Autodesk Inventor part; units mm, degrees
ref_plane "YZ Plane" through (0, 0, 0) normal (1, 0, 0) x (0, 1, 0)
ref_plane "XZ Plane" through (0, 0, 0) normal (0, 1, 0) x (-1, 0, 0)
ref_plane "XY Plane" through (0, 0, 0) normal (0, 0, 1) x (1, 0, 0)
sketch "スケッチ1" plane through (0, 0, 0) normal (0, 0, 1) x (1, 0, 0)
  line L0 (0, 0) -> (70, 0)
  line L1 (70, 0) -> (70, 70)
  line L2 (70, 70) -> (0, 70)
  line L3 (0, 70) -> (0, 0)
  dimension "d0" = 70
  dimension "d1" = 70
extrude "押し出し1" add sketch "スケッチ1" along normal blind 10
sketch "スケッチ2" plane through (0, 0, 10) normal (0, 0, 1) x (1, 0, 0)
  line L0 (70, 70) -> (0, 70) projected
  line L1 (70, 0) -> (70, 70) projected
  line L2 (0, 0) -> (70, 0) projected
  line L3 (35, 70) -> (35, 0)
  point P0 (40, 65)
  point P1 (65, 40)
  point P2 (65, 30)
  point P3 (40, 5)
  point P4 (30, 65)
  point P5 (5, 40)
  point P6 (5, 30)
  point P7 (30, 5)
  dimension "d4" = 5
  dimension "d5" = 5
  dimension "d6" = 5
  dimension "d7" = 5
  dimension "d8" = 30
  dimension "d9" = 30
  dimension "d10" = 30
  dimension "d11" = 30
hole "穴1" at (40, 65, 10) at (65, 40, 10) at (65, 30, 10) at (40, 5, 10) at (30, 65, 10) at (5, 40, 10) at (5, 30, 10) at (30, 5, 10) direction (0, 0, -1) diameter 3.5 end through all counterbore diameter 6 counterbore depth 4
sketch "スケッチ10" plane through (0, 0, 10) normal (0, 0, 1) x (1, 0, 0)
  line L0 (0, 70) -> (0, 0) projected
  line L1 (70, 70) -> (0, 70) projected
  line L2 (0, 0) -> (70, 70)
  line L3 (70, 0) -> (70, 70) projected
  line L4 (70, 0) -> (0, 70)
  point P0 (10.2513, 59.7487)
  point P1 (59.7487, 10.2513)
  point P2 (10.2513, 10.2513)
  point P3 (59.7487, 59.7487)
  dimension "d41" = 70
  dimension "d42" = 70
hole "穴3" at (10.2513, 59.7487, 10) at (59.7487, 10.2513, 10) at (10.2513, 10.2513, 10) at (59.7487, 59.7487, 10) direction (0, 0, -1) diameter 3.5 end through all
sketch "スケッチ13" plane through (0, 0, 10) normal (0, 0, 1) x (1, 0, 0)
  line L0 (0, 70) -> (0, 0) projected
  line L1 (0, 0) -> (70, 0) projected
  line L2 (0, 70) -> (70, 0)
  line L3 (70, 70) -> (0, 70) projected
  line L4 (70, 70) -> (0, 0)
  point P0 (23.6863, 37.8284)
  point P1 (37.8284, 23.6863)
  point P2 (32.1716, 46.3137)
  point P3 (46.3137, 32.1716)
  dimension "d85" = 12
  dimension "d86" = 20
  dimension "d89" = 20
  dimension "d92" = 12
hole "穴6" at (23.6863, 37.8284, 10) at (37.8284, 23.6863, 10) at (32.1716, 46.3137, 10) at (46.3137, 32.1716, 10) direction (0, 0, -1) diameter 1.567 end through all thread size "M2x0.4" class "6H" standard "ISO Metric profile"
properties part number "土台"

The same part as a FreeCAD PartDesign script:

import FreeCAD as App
import Part
import Sketcher
Q = App.Units.Quantity

doc = App.newDocument("Part")
params = doc.addObject("Spreadsheet::Sheet", "Params")
for row, (alias, value) in enumerate([
    ("sketch1_width", "70 mm"),
    ("pad1_length", "10 mm"),
    ("sketch2_diameter", "3.5 mm"),
    ("hole_diameter", "3.5 mm"),
    ("hole_cbore_diameter", "6 mm"),
    ("hole_cbore_depth", "4 mm"),
    ("sketch3_diameter", "3.5 mm"),
    ("hole2_diameter", "3.5 mm"),
    ("hole3_diameter", "1.567 mm"),
], start=1):
    params.set(f"A{row}", alias)
    params.set(f"B{row}", "=" + value)
    params.setAlias(f"B{row}", alias)

body = doc.addObject("PartDesign::Body", "Body")

sketch1 = body.newObject("Sketcher::SketchObject", "Sketch")
sketch1.AttachmentSupport = (doc.getObject("XY_Plane"), [""])
sketch1.MapMode = "FlatFace"
sketch1.addGeometry([
    Part.LineSegment(App.Vector(0, 70, 0), App.Vector(0, 0, 0)),
    Part.LineSegment(App.Vector(0, 0, 0), App.Vector(70, 0, 0)),
    Part.LineSegment(App.Vector(70, 0, 0), App.Vector(70, 70, 0)),
    Part.LineSegment(App.Vector(70, 70, 0), App.Vector(0, 70, 0)),
], False)
sketch1.addConstraint([
    Sketcher.Constraint("Coincident", 0, 2, 1, 1),
    Sketcher.Constraint("Coincident", 1, 2, 2, 1),
    Sketcher.Constraint("Coincident", 2, 2, 3, 1),
    Sketcher.Constraint("Coincident", 3, 2, 0, 1),
    Sketcher.Constraint("Vertical", 0),
    Sketcher.Constraint("Horizontal", 1),
    Sketcher.Constraint("Vertical", 2),
    Sketcher.Constraint("Horizontal", 3),
    Sketcher.Constraint("Coincident", 0, 2, -1, 1),
    Sketcher.Constraint("Equal", 3, 0),
    Sketcher.Constraint("DistanceX", 1, 1, 1, 2, Q("70 mm")),
])
sketch1.setExpression("Constraints[10]", "Params.sketch1_width")
pad1 = body.newObject("PartDesign::Pad", "Pad")
pad1.Profile = sketch1
pad1.setExpression("Length", "Params.pad1_length")

sketch2 = body.newObject("Sketcher::SketchObject", "Sketch001")
sketch2.AttachmentSupport = (doc.getObject("XY_Plane"), [""])
sketch2.MapMode = "FlatFace"
sketch2.AttachmentOffset = App.Placement(App.Vector(0, 0, 10), App.Rotation())
sketch2.addGeometry([
    Part.Circle(App.Vector(40, 65, 0), App.Vector(0, 0, 1), 1.75),
    Part.Circle(App.Vector(65, 40, 0), App.Vector(0, 0, 1), 1.75),
    Part.Circle(App.Vector(65, 30, 0), App.Vector(0, 0, 1), 1.75),
    Part.Circle(App.Vector(40, 5, 0), App.Vector(0, 0, 1), 1.75),
    Part.Circle(App.Vector(30, 65, 0), App.Vector(0, 0, 1), 1.75),
    Part.Circle(App.Vector(5, 40, 0), App.Vector(0, 0, 1), 1.75),
    Part.Circle(App.Vector(5, 30, 0), App.Vector(0, 0, 1), 1.75),
    Part.Circle(App.Vector(30, 5, 0), App.Vector(0, 0, 1), 1.75),
], False)
sketch2.addConstraint([
    Sketcher.Constraint("Equal", 0, 1),
    Sketcher.Constraint("Equal", 1, 2),
    Sketcher.Constraint("Equal", 2, 3),
    Sketcher.Constraint("Equal", 3, 4),
    Sketcher.Constraint("Equal", 4, 5),
    Sketcher.Constraint("Equal", 5, 6),
    Sketcher.Constraint("Equal", 6, 7),
    Sketcher.Constraint("Horizontal", 0, 3, 4, 3),
    Sketcher.Constraint("Horizontal", 1, 3, 5, 3),
    Sketcher.Constraint("Horizontal", 2, 3, 6, 3),
    Sketcher.Constraint("Horizontal", 3, 3, 7, 3),
    Sketcher.Constraint("Vertical", 1, 3, 2, 3),
    Sketcher.Constraint("Vertical", 0, 3, 3, 3),
    Sketcher.Constraint("Vertical", 5, 3, 6, 3),
    Sketcher.Constraint("Vertical", 4, 3, 7, 3),
    Sketcher.Constraint("Diameter", 0, Q("3.5 mm")),
    Sketcher.Constraint("DistanceX", -1, 1, 0, 3, Q("40 mm")),
    Sketcher.Constraint("DistanceY", -1, 1, 0, 3, Q("65 mm")),
    Sketcher.Constraint("DistanceX", -1, 1, 1, 3, Q("65 mm")),
    Sketcher.Constraint("DistanceY", -1, 1, 1, 3, Q("40 mm")),
    Sketcher.Constraint("DistanceY", -1, 1, 2, 3, Q("30 mm")),
    Sketcher.Constraint("DistanceY", -1, 1, 3, 3, Q("5 mm")),
    Sketcher.Constraint("DistanceX", -1, 1, 4, 3, Q("30 mm")),
    Sketcher.Constraint("DistanceX", -1, 1, 5, 3, Q("5 mm")),
])
sketch2.setExpression("Constraints[15]", "Params.sketch2_diameter")
doc.recompute()
hole = body.newObject("PartDesign::Hole", "Hole")
hole.Profile = sketch2
hole.ThreadType = "None"
hole.setExpression("Diameter", "Params.hole_diameter")
hole.DepthType = "ThroughAll"
hole.HoleCutType = "Counterbore"
hole.setExpression("HoleCutDiameter", "Params.hole_cbore_diameter")
hole.setExpression("HoleCutDepth", "Params.hole_cbore_depth")

sketch3 = body.newObject("Sketcher::SketchObject", "Sketch002")
sketch3.AttachmentSupport = (doc.getObject("XY_Plane"), [""])
sketch3.MapMode = "FlatFace"
sketch3.AttachmentOffset = App.Placement(App.Vector(0, 0, 10), App.Rotation())
sketch3.addGeometry([
    Part.Circle(App.Vector(10.2513, 59.7487, 0), App.Vector(0, 0, 1), 1.75),
    Part.Circle(App.Vector(59.7487, 10.2513, 0), App.Vector(0, 0, 1), 1.75),
    Part.Circle(App.Vector(10.2513, 10.2513, 0), App.Vector(0, 0, 1), 1.75),
    Part.Circle(App.Vector(59.7487, 59.7487, 0), App.Vector(0, 0, 1), 1.75),
], False)
sketch3.addConstraint([
    Sketcher.Constraint("Equal", 0, 1),
    Sketcher.Constraint("Equal", 1, 2),
    Sketcher.Constraint("Equal", 2, 3),
    Sketcher.Constraint("Horizontal", 1, 3, 2, 3),
    Sketcher.Constraint("Horizontal", 0, 3, 3, 3),
    Sketcher.Constraint("Vertical", 0, 3, 2, 3),
    Sketcher.Constraint("Vertical", 1, 3, 3, 3),
    Sketcher.Constraint("Diameter", 0, Q("3.5 mm")),
    Sketcher.Constraint("DistanceX", -1, 1, 0, 3, Q("10.2513 mm")),
    Sketcher.Constraint("DistanceY", -1, 1, 0, 3, Q("59.7487 mm")),
    Sketcher.Constraint("DistanceX", -1, 1, 1, 3, Q("59.7487 mm")),
    Sketcher.Constraint("DistanceY", -1, 1, 1, 3, Q("10.2513 mm")),
])
sketch3.setExpression("Constraints[7]", "Params.sketch3_diameter")
doc.recompute()
hole2 = body.newObject("PartDesign::Hole", "Hole001")
hole2.Profile = sketch3
hole2.ThreadType = "None"
hole2.setExpression("Diameter", "Params.hole2_diameter")
hole2.DepthType = "ThroughAll"

sketch4 = body.newObject("Sketcher::SketchObject", "Sketch003")
sketch4.AttachmentSupport = (doc.getObject("XY_Plane"), [""])
sketch4.MapMode = "FlatFace"
sketch4.AttachmentOffset = App.Placement(App.Vector(0, 0, 10), App.Rotation())
sketch4.addGeometry([
    Part.Circle(App.Vector(23.6863, 37.8284, 0), App.Vector(0, 0, 1), 0.7835),
    Part.Circle(App.Vector(37.8284, 23.6863, 0), App.Vector(0, 0, 1), 0.7835),
    Part.Circle(App.Vector(32.1716, 46.3137, 0), App.Vector(0, 0, 1), 0.7835),
    Part.Circle(App.Vector(46.3137, 32.1716, 0), App.Vector(0, 0, 1), 0.7835),
], False)
sketch4.addConstraint([
    Sketcher.Constraint("Equal", 0, 1),
    Sketcher.Constraint("Equal", 1, 2),
    Sketcher.Constraint("Equal", 2, 3),
    Sketcher.Constraint("Diameter", 0, Q("1.567 mm")),
    Sketcher.Constraint("DistanceX", 0, 3, 1, 3, Q("14.142 mm")),
    Sketcher.Constraint("DistanceY", 1, 3, 0, 3, Q("14.142 mm")),
    Sketcher.Constraint("DistanceX", 2, 3, 3, 3, Q("14.142 mm")),
    Sketcher.Constraint("DistanceY", 3, 3, 2, 3, Q("14.142 mm")),
    Sketcher.Constraint("DistanceX", -1, 1, 0, 3, Q("23.6863 mm")),
    Sketcher.Constraint("DistanceY", -1, 1, 0, 3, Q("37.8284 mm")),
    Sketcher.Constraint("DistanceX", -1, 1, 2, 3, Q("32.1716 mm")),
    Sketcher.Constraint("DistanceY", -1, 1, 2, 3, Q("46.3137 mm")),
])
doc.recompute()
hole3 = body.newObject("PartDesign::Hole", "Hole002")
hole3.Profile = sketch4
hole3.ThreadType = "None"
hole3.setExpression("Diameter", "Params.hole3_diameter")
hole3.DepthType = "ThroughAll"

doc.recompute()
